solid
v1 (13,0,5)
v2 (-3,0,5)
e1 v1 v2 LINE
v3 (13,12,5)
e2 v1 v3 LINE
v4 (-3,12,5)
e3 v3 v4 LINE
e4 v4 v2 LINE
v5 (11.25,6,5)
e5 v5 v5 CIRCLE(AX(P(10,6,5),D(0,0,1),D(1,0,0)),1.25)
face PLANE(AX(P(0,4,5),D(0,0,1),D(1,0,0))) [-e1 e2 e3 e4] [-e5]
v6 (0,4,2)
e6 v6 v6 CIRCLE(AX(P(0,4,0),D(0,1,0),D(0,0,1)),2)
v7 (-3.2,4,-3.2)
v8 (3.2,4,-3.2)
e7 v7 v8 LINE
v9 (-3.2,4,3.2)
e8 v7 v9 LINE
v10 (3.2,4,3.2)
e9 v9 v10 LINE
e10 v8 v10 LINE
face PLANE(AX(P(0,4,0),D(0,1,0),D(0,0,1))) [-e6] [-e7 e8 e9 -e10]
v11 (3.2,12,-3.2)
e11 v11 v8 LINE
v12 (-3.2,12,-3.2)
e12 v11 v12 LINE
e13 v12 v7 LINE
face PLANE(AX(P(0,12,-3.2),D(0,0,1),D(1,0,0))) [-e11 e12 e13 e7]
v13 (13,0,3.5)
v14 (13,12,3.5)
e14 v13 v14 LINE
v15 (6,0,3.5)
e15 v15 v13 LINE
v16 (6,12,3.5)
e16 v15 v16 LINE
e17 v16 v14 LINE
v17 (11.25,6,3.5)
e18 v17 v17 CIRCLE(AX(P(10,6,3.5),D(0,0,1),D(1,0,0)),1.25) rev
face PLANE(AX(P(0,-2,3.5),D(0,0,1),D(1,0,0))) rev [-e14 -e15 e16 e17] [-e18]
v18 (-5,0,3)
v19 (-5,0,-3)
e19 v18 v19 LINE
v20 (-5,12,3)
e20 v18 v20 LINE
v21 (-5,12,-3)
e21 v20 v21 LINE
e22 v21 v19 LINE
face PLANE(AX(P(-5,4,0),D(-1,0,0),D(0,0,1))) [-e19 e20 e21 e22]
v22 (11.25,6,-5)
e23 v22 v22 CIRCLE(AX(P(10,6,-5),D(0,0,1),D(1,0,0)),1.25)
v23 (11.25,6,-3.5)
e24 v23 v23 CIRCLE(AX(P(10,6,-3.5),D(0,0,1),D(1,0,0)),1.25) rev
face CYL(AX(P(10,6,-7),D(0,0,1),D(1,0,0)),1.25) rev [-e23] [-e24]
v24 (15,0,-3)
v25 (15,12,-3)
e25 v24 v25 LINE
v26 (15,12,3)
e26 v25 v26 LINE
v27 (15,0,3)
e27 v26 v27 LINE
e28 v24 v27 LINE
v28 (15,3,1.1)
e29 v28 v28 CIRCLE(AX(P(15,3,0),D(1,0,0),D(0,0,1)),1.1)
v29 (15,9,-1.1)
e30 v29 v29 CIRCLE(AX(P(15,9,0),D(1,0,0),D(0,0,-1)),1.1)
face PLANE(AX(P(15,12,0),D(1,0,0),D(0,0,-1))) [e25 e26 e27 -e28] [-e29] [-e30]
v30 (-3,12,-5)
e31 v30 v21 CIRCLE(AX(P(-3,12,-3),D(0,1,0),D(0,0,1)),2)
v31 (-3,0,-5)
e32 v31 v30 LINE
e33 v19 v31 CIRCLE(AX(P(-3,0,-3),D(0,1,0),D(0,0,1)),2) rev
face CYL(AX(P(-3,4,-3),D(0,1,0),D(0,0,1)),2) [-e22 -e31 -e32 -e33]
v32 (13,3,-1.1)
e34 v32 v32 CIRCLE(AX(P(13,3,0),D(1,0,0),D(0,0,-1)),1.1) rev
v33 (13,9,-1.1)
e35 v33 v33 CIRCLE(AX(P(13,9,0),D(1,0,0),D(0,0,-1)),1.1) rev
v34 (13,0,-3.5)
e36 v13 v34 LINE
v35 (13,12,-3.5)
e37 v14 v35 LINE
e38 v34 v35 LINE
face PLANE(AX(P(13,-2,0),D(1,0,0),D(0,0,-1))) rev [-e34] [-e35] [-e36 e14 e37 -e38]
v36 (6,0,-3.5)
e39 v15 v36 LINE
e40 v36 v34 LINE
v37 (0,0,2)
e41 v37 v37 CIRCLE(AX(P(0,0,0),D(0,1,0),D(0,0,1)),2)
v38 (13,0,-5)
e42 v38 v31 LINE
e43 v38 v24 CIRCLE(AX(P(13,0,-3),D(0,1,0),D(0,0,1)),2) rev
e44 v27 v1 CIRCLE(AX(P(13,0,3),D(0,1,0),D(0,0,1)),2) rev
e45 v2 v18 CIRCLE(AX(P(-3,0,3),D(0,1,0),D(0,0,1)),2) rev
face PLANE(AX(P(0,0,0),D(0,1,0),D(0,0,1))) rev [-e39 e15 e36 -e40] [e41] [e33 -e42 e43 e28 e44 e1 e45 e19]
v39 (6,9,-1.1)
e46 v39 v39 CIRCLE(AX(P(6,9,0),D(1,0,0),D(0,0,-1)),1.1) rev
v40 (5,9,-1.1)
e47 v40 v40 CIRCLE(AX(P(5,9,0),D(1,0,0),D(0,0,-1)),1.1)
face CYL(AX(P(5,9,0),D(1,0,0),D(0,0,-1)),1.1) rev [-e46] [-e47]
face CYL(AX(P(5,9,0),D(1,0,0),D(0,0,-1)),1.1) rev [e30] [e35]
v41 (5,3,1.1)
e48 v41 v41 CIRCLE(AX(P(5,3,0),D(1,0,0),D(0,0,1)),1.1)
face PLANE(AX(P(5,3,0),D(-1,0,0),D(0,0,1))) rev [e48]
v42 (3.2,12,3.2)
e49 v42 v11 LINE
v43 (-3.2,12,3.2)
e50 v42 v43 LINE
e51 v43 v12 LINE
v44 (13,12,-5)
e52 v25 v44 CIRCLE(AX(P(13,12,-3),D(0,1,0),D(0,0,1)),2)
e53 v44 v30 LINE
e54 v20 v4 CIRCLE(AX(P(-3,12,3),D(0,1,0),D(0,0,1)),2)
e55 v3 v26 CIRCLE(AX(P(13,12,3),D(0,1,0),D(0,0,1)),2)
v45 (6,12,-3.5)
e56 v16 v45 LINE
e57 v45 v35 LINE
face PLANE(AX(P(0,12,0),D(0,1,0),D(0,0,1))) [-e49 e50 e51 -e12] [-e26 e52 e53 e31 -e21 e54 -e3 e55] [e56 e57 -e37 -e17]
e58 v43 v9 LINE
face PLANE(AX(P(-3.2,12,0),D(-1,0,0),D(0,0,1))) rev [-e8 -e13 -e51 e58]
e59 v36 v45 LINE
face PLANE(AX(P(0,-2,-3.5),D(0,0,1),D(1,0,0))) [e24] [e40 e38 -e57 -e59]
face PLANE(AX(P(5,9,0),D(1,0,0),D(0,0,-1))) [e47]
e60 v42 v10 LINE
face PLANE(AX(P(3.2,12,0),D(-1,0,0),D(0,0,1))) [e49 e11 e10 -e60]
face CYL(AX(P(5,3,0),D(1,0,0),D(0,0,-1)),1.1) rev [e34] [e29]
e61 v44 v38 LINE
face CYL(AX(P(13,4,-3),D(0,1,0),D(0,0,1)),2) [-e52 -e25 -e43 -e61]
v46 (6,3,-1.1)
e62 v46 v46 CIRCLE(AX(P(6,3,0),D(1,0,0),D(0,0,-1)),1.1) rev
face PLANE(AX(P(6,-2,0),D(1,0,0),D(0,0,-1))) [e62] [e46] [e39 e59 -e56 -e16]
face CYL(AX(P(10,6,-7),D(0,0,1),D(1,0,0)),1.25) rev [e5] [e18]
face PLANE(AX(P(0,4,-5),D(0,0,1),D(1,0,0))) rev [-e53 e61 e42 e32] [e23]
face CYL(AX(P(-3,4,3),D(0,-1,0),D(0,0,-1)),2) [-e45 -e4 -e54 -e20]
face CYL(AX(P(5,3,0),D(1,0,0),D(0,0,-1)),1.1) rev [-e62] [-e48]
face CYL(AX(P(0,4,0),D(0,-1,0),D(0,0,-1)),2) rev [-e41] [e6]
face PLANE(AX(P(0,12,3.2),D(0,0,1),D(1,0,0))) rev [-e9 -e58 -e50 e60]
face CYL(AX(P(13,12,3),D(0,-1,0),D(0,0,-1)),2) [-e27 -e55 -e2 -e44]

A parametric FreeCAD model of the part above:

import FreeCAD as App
import Part
import Sketcher
from FreeCAD import Vector
Q = App.Units.Quantity


def edges_at(feature, points):
    """Names of the edges that pass closest to the given points."""
    edges = feature.Shape.Edges
    near = lambda p: min(range(len(edges)), key=lambda i: edges[i].distToShape(Part.Vertex(*p))[0])
    return sorted({f"Edge{near(p) + 1}" for p in points})


def add_polygon(sketch, points):
    """Adds a closed chain of lines whose ends are joined by coincident constraints."""
    first, n = sketch.GeometryCount, len(points)
    for a, b in zip(points, points[1:] + points[:1]):
        sketch.addGeometry(Part.LineSegment(App.Vector(*a, 0), App.Vector(*b, 0)), False)
    for i in range(n):
        sketch.addConstraint(Sketcher.Constraint("Coincident", first + i, 2, first + (i + 1) % n, 1))

doc = App.newDocument("Part")
params = doc.addObject("Spreadsheet::Sheet", "Params")
for row, (alias, value) in enumerate([
    ("sketch1_diameter", "4 mm"),
    ("sketch1_width", "10 mm"),
    ("pad1_length", "4 mm"),
    ("sketch2_width", "10 mm"),
    ("sketch2_width2", "6.4 mm"),
    ("pad2_length", "12 mm"),
    ("sketch3_width", "10 mm"),
    ("pad3_length", "12 mm"),
    ("sketch4_diameter", "2.5 mm"),
    ("pocket1_length", "12 mm"),
    ("sketch5_diameter", "2.2 mm"),
    ("pocket2_length", "10 mm"),
    ("fillet_radius", "2 mm"),
    ("sketch6_width", "7 mm"),
    ("pocket3_length", "14 mm"),
], start=1):
    params.set(f"A{row}", alias)
    params.set(f"B{row}", "=" + value)
    params.setAlias(f"B{row}", alias)

body = doc.addObject("PartDesign::Body", "Body")

# Sketch on XZ plane
sketch1 = doc.addObject("Sketcher::SketchObject", "Sketch")
body.addObject(sketch1)
sketch1.AttachmentSupport = (doc.XZ_Plane, [""])
sketch1.MapMode = "FlatFace"
add_polygon(sketch1, [(-5, -5), (-5, 5), (5, 5), (5, -5)])  # lines 0-3
sketch1.addGeometry(Part.Circle(Vector(0, 0, 0), Vector(0, 0, 1), 2), False)  # 4
sketch1.addConstraint(Sketcher.Constraint("Vertical", 0))
sketch1.addConstraint(Sketcher.Constraint("Horizontal", 1))
sketch1.addConstraint(Sketcher.Constraint("Vertical", 2))
sketch1.addConstraint(Sketcher.Constraint("Horizontal", 3))
sketch1.addConstraint(Sketcher.Constraint("Coincident", 4, 3, -1, 1))
sketch1.addConstraint(Sketcher.Constraint("Symmetric", 0, 2, 2, 2, -1, 1))
sketch1.addConstraint(Sketcher.Constraint("Equal", 3, 0))
sketch1.addConstraint(Sketcher.Constraint("Diameter", 4, Q("4 mm")))
sketch1.addConstraint(Sketcher.Constraint("DistanceX", 1, 1, 1, 2, Q("10 mm")))
sketch1.setExpression("Constraints[11]", "Params.sketch1_diameter")
sketch1.setExpression("Constraints[12]", "Params.sketch1_width")
pad1 = doc.addObject("PartDesign::Pad", "Pad")
body.addObject(pad1)
pad1.Profile = sketch1
pad1.setExpression("Length", "Params.pad1_length")
pad1.Reversed = True

# Sketch on XZ plane
sketch2 = doc.addObject("Sketcher::SketchObject", "Sketch001")
body.addObject(sketch2)
sketch2.AttachmentSupport = (doc.XZ_Plane, [""])
sketch2.MapMode = "FlatFace"
add_polygon(sketch2, [(-5, -5), (-5, 5), (5, 5), (5, -5)])  # lines 0-3
add_polygon(sketch2, [(3, 3), (-3, 3), (-3, -3), (3, -3)])  # lines 4-7
sketch2.addConstraint(Sketcher.Constraint("Vertical", 0))
sketch2.addConstraint(Sketcher.Constraint("Horizontal", 1))
sketch2.addConstraint(Sketcher.Constraint("Vertical", 2))
sketch2.addConstraint(Sketcher.Constraint("Horizontal", 3))
sketch2.addConstraint(Sketcher.Constraint("Horizontal", 4))
sketch2.addConstraint(Sketcher.Constraint("Vertical", 5))
sketch2.addConstraint(Sketcher.Constraint("Horizontal", 6))
sketch2.addConstraint(Sketcher.Constraint("Vertical", 7))
sketch2.addConstraint(Sketcher.Constraint("Symmetric", 0, 2, 2, 2, -1, 1))
sketch2.addConstraint(Sketcher.Constraint("Symmetric", 4, 2, 6, 2, -1, 1))
sketch2.addConstraint(Sketcher.Constraint("Equal", 3, 0))
sketch2.addConstraint(Sketcher.Constraint("Equal", 6, 5))
sketch2.addConstraint(Sketcher.Constraint("DistanceX", 1, 1, 1, 2, Q("10 mm")))
sketch2.addConstraint(Sketcher.Constraint("DistanceX", 4, 2, 4, 1, Q("6.4 mm")))
sketch2.setExpression("Constraints[20]", "Params.sketch2_width")
sketch2.setExpression("Constraints[21]", "Params.sketch2_width2")
pad2 = doc.addObject("PartDesign::Pad", "Pad001")
body.addObject(pad2)
pad2.Profile = sketch2
pad2.setExpression("Length", "Params.pad2_length")
pad2.Reversed = True

# Sketch on XZ plane
sketch3 = doc.addObject("Sketcher::SketchObject", "Sketch002")
body.addObject(sketch3)
sketch3.AttachmentSupport = (doc.XZ_Plane, [""])
sketch3.MapMode = "FlatFace"
add_polygon(sketch3, [(5, -5), (5, 5), (15, 5), (15, -5)])  # lines 0-3
sketch3.addConstraint(Sketcher.Constraint("Vertical", 0))
sketch3.addConstraint(Sketcher.Constraint("Horizontal", 1))
sketch3.addConstraint(Sketcher.Constraint("Vertical", 2))
sketch3.addConstraint(Sketcher.Constraint("Horizontal", 3))
sketch3.addConstraint(Sketcher.Constraint("Equal", 3, 0))
sketch3.addConstraint(Sketcher.Constraint("DistanceX", 1, 1, 1, 2, Q("10 mm")))
sketch3.addConstraint(Sketcher.Constraint("DistanceX", -1, 1, 0, 2, Q("5 mm")))
sketch3.addConstraint(Sketcher.Constraint("DistanceY", -1, 1, 0, 2, Q("5 mm")))
sketch3.setExpression("Constraints[9]", "Params.sketch3_width")
pad3 = doc.addObject("PartDesign::Pad", "Pad002")
body.addObject(pad3)
pad3.Profile = sketch3
pad3.setExpression("Length", "Params.pad3_length")
pad3.Reversed = True

# Sketch on XY plane
sketch4 = doc.addObject("Sketcher::SketchObject", "Sketch003")
body.addObject(sketch4)
sketch4.AttachmentSupport = (doc.XY_Plane, [""])
sketch4.MapMode = "FlatFace"
sketch4.AttachmentOffset = App.Placement(Vector(0, 0, 5), App.Rotation())
sketch4.addGeometry(Part.Circle(Vector(10, 6, 0), Vector(0, 0, 1), 1.2), False)
sketch4.addConstraint(Sketcher.Constraint("Diameter", 0, Q("2.5 mm")))
sketch4.addConstraint(Sketcher.Constraint("DistanceX", -1, 1, 0, 3, Q("10 mm")))
sketch4.addConstraint(Sketcher.Constraint("DistanceY", -1, 1, 0, 3, Q("6 mm")))
sketch4.setExpression("Constraints[0]", "Params.sketch4_diameter")
pocket1 = doc.addObject("PartDesign::Pocket", "Pocket")
body.addObject(pocket1)
pocket1.Profile = sketch4
pocket1.setExpression("Length", "Params.pocket1_length")

# Sketch on YZ plane
sketch5 = doc.addObject("Sketcher::SketchObject", "Sketch004")
body.addObject(sketch5)
sketch5.AttachmentSupport = (doc.YZ_Plane, [""])
sketch5.MapMode = "FlatFace"
sketch5.AttachmentOffset = App.Placement(Vector(0, 0, 15), App.Rotation())
sketch5.addGeometry(Part.Circle(Vector(9, 0, 0), Vector(0, 0, 1), 1.1), False)
sketch5.addGeometry(Part.Circle(Vector(3, 0, 0), Vector(0, 0, 1), 1.1), False)
sketch5.addConstraint(Sketcher.Constraint("Equal", 0, 1))
sketch5.addConstraint(Sketcher.Constraint("PointOnObject", 0, 3, -1))
sketch5.addConstraint(Sketcher.Constraint("PointOnObject", 1, 3, -1))
sketch5.addConstraint(Sketcher.Constraint("Diameter", 0, Q("2.2 mm")))
sketch5.addConstraint(Sketcher.Constraint("DistanceX", -1, 1, 0, 3, Q("9 mm")))
sketch5.addConstraint(Sketcher.Constraint("DistanceX", -1, 1, 1, 3, Q("3 mm")))
sketch5.setExpression("Constraints[3]", "Params.sketch5_diameter")
pocket2 = doc.addObject("PartDesign::Pocket", "Pocket001")
body.addObject(pocket2)
pocket2.Profile = sketch5
pocket2.setExpression("Length", "Params.pocket2_length")
doc.recompute()

fillet = doc.addObject("PartDesign::Fillet", "Fillet")
body.addObject(fillet)
fillet.Base = (pocket2, edges_at(pocket2, [
    (-5, 6, -5),
    (-5, 6, 5),
    (15, 6, 5),
    (15, 6, -5),
]))
fillet.setExpression("Radius", "Params.fillet_radius")

# Sketch on XZ plane
sketch6 = doc.addObject("Sketcher::SketchObject", "Sketch005")
body.addObject(sketch6)
sketch6.AttachmentSupport = (doc.XZ_Plane, [""])
sketch6.MapMode = "FlatFace"
sketch6.AttachmentOffset = App.Placement(Vector(0, 0, -12), App.Rotation())
add_polygon(sketch6, [(6, -4), (6, 4), (13, 4), (13, -4)])  # lines 0-3
sketch6.addConstraint(Sketcher.Constraint("Vertical", 0))
sketch6.addConstraint(Sketcher.Constraint("Horizontal", 1))
sketch6.addConstraint(Sketcher.Constraint("Vertical", 2))
sketch6.addConstraint(Sketcher.Constraint("Horizontal", 3))
sketch6.addConstraint(Sketcher.Constraint("Equal", 3, 0))
sketch6.addConstraint(Sketcher.Constraint("DistanceX", 1, 1, 1, 2, Q("7 mm")))
sketch6.addConstraint(Sketcher.Constraint("DistanceX", -1, 1, 0, 2, Q("6 mm")))
sketch6.addConstraint(Sketcher.Constraint("DistanceY", -1, 1, 0, 2, Q("3.5 mm")))
sketch6.setExpression("Constraints[9]", "Params.sketch6_width")
pocket3 = doc.addObject("PartDesign::Pocket", "Pocket002")
body.addObject(pocket3)
pocket3.Profile = sketch6
pocket3.setExpression("Length", "Params.pocket3_length")
pocket3.Reversed = True

doc.recompute()
